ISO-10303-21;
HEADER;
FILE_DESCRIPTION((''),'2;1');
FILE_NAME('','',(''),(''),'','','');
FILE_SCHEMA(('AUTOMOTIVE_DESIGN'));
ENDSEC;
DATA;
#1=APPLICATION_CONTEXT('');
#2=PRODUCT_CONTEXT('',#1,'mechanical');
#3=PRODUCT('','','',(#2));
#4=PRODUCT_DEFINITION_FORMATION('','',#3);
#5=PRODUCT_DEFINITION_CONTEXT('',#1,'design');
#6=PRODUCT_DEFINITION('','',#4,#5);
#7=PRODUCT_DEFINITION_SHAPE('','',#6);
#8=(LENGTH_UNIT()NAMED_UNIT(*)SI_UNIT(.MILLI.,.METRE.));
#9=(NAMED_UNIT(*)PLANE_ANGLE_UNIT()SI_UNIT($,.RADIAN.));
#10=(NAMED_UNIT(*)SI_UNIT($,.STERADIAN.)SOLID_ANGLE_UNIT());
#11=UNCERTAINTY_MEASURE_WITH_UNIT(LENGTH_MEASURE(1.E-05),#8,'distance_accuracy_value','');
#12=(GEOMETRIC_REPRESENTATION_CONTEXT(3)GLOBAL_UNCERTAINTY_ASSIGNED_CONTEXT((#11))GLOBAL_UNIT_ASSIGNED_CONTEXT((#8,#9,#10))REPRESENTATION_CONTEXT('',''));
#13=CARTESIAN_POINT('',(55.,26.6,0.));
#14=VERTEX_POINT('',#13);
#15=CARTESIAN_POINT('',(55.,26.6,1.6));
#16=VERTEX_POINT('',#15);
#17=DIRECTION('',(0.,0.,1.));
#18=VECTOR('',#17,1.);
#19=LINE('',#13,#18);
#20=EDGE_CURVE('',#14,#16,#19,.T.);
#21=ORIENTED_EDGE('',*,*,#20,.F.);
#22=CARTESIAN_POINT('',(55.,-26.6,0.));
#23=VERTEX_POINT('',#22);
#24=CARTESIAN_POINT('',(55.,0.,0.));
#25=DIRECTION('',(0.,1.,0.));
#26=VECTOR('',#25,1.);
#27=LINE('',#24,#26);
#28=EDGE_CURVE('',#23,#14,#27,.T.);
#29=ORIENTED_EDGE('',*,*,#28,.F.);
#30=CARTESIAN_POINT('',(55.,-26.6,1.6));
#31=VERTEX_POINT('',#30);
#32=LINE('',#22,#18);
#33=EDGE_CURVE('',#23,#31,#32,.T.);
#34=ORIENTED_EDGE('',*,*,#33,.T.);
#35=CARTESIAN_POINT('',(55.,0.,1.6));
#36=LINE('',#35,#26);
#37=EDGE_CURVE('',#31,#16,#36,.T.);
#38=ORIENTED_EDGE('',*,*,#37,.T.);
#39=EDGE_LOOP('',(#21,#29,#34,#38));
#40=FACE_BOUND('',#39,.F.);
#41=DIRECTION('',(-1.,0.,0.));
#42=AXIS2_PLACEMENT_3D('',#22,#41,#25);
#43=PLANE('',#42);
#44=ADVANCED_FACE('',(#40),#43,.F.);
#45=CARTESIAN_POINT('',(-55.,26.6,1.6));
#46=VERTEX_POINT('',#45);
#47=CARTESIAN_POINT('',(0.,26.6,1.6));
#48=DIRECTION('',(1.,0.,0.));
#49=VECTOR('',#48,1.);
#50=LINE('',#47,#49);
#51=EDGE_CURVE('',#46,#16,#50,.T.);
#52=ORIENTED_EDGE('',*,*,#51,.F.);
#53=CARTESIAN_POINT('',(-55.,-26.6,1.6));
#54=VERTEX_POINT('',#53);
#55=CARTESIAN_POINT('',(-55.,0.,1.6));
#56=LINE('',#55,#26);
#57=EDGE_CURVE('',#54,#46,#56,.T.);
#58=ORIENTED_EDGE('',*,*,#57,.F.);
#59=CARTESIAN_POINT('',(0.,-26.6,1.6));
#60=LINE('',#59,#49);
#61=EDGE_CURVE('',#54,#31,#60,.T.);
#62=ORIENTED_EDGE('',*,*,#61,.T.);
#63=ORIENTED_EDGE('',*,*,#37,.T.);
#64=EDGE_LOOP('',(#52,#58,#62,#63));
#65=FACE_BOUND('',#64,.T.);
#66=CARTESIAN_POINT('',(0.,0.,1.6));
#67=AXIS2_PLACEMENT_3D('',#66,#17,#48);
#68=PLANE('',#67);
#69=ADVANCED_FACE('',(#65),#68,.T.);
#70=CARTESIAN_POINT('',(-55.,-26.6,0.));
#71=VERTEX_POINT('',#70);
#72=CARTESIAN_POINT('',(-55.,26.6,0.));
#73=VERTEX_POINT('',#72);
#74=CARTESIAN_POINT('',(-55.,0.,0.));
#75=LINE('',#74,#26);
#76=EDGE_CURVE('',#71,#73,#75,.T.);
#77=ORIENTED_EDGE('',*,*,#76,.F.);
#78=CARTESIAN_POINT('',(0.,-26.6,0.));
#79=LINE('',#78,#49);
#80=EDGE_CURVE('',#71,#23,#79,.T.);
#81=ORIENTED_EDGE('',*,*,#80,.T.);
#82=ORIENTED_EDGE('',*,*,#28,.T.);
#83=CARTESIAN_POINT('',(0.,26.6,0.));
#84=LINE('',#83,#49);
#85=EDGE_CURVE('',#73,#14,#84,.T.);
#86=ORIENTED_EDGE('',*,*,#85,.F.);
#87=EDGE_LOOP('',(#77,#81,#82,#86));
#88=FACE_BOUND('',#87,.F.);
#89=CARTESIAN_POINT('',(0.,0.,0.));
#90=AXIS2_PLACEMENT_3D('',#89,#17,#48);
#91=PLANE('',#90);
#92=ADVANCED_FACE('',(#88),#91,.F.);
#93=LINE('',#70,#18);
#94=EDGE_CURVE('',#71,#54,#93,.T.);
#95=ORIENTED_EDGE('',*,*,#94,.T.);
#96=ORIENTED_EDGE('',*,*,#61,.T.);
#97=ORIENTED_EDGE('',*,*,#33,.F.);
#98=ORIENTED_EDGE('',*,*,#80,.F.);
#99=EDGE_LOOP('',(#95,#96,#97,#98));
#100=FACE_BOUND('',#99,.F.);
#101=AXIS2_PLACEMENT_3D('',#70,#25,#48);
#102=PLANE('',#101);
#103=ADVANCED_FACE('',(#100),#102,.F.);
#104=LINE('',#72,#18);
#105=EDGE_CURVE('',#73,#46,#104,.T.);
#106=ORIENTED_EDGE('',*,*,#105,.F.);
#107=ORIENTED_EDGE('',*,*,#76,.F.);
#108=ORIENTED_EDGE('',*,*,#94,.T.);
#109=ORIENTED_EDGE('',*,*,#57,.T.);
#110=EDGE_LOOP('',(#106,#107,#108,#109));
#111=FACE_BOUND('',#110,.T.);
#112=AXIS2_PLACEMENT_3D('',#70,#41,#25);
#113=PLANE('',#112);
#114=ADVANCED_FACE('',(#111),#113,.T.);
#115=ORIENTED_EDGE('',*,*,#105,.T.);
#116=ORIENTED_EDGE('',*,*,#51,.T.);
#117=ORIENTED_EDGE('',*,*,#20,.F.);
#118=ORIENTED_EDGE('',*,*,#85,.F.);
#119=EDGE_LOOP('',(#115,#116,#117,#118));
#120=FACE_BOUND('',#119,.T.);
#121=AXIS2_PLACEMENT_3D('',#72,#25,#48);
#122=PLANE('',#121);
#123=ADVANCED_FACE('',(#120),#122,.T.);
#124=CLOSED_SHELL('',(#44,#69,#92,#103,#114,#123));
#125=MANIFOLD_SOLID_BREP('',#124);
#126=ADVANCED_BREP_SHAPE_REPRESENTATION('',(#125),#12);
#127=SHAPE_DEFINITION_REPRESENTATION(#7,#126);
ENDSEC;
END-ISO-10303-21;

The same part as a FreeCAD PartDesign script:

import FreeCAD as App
import Part
import Sketcher
from FreeCAD import Vector
Q = App.Units.Quantity


def add_polygon(sketch, points):
    """Adds a closed chain of lines whose ends are joined by coincident constraints."""
    first, n = sketch.GeometryCount, len(points)
    for a, b in zip(points, points[1:] + points[:1]):
        sketch.addGeometry(Part.LineSegment(App.Vector(*a, 0), App.Vector(*b, 0)), False)
    for i in range(n):
        sketch.addConstraint(Sketcher.Constraint("Coincident", first + i, 2, first + (i + 1) % n, 1))

doc = App.newDocument("Part")
body = doc.addObject("PartDesign::Body", "Body")

# Sketch on XY plane
sketch1 = doc.addObject("Sketcher::SketchObject", "Sketch")
body.addObject(sketch1)
sketch1.AttachmentSupport = (doc.XY_Plane, [""])
sketch1.MapMode = "FlatFace"
add_polygon(sketch1, [(-55, 27), (-55, -27), (55, -27), (55, 27)])  # lines 0-3
sketch1.addConstraint(Sketcher.Constraint("Vertical", 0))
sketch1.addConstraint(Sketcher.Constraint("Horizontal", 1))
sketch1.addConstraint(Sketcher.Constraint("Vertical", 2))
sketch1.addConstraint(Sketcher.Constraint("Horizontal", 3))
sketch1.addConstraint(Sketcher.Constraint("Symmetric", 0, 2, 2, 2, -1, 1))
sketch1.addConstraint(Sketcher.Constraint("DistanceX", 1, 1, 1, 2, Q("110 mm")))
sketch1.addConstraint(Sketcher.Constraint("DistanceY", 0, 2, 0, 1, Q("53.2 mm")))
pad1 = doc.addObject("PartDesign::Pad", "Pad")
body.addObject(pad1)
pad1.Profile = sketch1
pad1.Length = 1.6

doc.recompute()
